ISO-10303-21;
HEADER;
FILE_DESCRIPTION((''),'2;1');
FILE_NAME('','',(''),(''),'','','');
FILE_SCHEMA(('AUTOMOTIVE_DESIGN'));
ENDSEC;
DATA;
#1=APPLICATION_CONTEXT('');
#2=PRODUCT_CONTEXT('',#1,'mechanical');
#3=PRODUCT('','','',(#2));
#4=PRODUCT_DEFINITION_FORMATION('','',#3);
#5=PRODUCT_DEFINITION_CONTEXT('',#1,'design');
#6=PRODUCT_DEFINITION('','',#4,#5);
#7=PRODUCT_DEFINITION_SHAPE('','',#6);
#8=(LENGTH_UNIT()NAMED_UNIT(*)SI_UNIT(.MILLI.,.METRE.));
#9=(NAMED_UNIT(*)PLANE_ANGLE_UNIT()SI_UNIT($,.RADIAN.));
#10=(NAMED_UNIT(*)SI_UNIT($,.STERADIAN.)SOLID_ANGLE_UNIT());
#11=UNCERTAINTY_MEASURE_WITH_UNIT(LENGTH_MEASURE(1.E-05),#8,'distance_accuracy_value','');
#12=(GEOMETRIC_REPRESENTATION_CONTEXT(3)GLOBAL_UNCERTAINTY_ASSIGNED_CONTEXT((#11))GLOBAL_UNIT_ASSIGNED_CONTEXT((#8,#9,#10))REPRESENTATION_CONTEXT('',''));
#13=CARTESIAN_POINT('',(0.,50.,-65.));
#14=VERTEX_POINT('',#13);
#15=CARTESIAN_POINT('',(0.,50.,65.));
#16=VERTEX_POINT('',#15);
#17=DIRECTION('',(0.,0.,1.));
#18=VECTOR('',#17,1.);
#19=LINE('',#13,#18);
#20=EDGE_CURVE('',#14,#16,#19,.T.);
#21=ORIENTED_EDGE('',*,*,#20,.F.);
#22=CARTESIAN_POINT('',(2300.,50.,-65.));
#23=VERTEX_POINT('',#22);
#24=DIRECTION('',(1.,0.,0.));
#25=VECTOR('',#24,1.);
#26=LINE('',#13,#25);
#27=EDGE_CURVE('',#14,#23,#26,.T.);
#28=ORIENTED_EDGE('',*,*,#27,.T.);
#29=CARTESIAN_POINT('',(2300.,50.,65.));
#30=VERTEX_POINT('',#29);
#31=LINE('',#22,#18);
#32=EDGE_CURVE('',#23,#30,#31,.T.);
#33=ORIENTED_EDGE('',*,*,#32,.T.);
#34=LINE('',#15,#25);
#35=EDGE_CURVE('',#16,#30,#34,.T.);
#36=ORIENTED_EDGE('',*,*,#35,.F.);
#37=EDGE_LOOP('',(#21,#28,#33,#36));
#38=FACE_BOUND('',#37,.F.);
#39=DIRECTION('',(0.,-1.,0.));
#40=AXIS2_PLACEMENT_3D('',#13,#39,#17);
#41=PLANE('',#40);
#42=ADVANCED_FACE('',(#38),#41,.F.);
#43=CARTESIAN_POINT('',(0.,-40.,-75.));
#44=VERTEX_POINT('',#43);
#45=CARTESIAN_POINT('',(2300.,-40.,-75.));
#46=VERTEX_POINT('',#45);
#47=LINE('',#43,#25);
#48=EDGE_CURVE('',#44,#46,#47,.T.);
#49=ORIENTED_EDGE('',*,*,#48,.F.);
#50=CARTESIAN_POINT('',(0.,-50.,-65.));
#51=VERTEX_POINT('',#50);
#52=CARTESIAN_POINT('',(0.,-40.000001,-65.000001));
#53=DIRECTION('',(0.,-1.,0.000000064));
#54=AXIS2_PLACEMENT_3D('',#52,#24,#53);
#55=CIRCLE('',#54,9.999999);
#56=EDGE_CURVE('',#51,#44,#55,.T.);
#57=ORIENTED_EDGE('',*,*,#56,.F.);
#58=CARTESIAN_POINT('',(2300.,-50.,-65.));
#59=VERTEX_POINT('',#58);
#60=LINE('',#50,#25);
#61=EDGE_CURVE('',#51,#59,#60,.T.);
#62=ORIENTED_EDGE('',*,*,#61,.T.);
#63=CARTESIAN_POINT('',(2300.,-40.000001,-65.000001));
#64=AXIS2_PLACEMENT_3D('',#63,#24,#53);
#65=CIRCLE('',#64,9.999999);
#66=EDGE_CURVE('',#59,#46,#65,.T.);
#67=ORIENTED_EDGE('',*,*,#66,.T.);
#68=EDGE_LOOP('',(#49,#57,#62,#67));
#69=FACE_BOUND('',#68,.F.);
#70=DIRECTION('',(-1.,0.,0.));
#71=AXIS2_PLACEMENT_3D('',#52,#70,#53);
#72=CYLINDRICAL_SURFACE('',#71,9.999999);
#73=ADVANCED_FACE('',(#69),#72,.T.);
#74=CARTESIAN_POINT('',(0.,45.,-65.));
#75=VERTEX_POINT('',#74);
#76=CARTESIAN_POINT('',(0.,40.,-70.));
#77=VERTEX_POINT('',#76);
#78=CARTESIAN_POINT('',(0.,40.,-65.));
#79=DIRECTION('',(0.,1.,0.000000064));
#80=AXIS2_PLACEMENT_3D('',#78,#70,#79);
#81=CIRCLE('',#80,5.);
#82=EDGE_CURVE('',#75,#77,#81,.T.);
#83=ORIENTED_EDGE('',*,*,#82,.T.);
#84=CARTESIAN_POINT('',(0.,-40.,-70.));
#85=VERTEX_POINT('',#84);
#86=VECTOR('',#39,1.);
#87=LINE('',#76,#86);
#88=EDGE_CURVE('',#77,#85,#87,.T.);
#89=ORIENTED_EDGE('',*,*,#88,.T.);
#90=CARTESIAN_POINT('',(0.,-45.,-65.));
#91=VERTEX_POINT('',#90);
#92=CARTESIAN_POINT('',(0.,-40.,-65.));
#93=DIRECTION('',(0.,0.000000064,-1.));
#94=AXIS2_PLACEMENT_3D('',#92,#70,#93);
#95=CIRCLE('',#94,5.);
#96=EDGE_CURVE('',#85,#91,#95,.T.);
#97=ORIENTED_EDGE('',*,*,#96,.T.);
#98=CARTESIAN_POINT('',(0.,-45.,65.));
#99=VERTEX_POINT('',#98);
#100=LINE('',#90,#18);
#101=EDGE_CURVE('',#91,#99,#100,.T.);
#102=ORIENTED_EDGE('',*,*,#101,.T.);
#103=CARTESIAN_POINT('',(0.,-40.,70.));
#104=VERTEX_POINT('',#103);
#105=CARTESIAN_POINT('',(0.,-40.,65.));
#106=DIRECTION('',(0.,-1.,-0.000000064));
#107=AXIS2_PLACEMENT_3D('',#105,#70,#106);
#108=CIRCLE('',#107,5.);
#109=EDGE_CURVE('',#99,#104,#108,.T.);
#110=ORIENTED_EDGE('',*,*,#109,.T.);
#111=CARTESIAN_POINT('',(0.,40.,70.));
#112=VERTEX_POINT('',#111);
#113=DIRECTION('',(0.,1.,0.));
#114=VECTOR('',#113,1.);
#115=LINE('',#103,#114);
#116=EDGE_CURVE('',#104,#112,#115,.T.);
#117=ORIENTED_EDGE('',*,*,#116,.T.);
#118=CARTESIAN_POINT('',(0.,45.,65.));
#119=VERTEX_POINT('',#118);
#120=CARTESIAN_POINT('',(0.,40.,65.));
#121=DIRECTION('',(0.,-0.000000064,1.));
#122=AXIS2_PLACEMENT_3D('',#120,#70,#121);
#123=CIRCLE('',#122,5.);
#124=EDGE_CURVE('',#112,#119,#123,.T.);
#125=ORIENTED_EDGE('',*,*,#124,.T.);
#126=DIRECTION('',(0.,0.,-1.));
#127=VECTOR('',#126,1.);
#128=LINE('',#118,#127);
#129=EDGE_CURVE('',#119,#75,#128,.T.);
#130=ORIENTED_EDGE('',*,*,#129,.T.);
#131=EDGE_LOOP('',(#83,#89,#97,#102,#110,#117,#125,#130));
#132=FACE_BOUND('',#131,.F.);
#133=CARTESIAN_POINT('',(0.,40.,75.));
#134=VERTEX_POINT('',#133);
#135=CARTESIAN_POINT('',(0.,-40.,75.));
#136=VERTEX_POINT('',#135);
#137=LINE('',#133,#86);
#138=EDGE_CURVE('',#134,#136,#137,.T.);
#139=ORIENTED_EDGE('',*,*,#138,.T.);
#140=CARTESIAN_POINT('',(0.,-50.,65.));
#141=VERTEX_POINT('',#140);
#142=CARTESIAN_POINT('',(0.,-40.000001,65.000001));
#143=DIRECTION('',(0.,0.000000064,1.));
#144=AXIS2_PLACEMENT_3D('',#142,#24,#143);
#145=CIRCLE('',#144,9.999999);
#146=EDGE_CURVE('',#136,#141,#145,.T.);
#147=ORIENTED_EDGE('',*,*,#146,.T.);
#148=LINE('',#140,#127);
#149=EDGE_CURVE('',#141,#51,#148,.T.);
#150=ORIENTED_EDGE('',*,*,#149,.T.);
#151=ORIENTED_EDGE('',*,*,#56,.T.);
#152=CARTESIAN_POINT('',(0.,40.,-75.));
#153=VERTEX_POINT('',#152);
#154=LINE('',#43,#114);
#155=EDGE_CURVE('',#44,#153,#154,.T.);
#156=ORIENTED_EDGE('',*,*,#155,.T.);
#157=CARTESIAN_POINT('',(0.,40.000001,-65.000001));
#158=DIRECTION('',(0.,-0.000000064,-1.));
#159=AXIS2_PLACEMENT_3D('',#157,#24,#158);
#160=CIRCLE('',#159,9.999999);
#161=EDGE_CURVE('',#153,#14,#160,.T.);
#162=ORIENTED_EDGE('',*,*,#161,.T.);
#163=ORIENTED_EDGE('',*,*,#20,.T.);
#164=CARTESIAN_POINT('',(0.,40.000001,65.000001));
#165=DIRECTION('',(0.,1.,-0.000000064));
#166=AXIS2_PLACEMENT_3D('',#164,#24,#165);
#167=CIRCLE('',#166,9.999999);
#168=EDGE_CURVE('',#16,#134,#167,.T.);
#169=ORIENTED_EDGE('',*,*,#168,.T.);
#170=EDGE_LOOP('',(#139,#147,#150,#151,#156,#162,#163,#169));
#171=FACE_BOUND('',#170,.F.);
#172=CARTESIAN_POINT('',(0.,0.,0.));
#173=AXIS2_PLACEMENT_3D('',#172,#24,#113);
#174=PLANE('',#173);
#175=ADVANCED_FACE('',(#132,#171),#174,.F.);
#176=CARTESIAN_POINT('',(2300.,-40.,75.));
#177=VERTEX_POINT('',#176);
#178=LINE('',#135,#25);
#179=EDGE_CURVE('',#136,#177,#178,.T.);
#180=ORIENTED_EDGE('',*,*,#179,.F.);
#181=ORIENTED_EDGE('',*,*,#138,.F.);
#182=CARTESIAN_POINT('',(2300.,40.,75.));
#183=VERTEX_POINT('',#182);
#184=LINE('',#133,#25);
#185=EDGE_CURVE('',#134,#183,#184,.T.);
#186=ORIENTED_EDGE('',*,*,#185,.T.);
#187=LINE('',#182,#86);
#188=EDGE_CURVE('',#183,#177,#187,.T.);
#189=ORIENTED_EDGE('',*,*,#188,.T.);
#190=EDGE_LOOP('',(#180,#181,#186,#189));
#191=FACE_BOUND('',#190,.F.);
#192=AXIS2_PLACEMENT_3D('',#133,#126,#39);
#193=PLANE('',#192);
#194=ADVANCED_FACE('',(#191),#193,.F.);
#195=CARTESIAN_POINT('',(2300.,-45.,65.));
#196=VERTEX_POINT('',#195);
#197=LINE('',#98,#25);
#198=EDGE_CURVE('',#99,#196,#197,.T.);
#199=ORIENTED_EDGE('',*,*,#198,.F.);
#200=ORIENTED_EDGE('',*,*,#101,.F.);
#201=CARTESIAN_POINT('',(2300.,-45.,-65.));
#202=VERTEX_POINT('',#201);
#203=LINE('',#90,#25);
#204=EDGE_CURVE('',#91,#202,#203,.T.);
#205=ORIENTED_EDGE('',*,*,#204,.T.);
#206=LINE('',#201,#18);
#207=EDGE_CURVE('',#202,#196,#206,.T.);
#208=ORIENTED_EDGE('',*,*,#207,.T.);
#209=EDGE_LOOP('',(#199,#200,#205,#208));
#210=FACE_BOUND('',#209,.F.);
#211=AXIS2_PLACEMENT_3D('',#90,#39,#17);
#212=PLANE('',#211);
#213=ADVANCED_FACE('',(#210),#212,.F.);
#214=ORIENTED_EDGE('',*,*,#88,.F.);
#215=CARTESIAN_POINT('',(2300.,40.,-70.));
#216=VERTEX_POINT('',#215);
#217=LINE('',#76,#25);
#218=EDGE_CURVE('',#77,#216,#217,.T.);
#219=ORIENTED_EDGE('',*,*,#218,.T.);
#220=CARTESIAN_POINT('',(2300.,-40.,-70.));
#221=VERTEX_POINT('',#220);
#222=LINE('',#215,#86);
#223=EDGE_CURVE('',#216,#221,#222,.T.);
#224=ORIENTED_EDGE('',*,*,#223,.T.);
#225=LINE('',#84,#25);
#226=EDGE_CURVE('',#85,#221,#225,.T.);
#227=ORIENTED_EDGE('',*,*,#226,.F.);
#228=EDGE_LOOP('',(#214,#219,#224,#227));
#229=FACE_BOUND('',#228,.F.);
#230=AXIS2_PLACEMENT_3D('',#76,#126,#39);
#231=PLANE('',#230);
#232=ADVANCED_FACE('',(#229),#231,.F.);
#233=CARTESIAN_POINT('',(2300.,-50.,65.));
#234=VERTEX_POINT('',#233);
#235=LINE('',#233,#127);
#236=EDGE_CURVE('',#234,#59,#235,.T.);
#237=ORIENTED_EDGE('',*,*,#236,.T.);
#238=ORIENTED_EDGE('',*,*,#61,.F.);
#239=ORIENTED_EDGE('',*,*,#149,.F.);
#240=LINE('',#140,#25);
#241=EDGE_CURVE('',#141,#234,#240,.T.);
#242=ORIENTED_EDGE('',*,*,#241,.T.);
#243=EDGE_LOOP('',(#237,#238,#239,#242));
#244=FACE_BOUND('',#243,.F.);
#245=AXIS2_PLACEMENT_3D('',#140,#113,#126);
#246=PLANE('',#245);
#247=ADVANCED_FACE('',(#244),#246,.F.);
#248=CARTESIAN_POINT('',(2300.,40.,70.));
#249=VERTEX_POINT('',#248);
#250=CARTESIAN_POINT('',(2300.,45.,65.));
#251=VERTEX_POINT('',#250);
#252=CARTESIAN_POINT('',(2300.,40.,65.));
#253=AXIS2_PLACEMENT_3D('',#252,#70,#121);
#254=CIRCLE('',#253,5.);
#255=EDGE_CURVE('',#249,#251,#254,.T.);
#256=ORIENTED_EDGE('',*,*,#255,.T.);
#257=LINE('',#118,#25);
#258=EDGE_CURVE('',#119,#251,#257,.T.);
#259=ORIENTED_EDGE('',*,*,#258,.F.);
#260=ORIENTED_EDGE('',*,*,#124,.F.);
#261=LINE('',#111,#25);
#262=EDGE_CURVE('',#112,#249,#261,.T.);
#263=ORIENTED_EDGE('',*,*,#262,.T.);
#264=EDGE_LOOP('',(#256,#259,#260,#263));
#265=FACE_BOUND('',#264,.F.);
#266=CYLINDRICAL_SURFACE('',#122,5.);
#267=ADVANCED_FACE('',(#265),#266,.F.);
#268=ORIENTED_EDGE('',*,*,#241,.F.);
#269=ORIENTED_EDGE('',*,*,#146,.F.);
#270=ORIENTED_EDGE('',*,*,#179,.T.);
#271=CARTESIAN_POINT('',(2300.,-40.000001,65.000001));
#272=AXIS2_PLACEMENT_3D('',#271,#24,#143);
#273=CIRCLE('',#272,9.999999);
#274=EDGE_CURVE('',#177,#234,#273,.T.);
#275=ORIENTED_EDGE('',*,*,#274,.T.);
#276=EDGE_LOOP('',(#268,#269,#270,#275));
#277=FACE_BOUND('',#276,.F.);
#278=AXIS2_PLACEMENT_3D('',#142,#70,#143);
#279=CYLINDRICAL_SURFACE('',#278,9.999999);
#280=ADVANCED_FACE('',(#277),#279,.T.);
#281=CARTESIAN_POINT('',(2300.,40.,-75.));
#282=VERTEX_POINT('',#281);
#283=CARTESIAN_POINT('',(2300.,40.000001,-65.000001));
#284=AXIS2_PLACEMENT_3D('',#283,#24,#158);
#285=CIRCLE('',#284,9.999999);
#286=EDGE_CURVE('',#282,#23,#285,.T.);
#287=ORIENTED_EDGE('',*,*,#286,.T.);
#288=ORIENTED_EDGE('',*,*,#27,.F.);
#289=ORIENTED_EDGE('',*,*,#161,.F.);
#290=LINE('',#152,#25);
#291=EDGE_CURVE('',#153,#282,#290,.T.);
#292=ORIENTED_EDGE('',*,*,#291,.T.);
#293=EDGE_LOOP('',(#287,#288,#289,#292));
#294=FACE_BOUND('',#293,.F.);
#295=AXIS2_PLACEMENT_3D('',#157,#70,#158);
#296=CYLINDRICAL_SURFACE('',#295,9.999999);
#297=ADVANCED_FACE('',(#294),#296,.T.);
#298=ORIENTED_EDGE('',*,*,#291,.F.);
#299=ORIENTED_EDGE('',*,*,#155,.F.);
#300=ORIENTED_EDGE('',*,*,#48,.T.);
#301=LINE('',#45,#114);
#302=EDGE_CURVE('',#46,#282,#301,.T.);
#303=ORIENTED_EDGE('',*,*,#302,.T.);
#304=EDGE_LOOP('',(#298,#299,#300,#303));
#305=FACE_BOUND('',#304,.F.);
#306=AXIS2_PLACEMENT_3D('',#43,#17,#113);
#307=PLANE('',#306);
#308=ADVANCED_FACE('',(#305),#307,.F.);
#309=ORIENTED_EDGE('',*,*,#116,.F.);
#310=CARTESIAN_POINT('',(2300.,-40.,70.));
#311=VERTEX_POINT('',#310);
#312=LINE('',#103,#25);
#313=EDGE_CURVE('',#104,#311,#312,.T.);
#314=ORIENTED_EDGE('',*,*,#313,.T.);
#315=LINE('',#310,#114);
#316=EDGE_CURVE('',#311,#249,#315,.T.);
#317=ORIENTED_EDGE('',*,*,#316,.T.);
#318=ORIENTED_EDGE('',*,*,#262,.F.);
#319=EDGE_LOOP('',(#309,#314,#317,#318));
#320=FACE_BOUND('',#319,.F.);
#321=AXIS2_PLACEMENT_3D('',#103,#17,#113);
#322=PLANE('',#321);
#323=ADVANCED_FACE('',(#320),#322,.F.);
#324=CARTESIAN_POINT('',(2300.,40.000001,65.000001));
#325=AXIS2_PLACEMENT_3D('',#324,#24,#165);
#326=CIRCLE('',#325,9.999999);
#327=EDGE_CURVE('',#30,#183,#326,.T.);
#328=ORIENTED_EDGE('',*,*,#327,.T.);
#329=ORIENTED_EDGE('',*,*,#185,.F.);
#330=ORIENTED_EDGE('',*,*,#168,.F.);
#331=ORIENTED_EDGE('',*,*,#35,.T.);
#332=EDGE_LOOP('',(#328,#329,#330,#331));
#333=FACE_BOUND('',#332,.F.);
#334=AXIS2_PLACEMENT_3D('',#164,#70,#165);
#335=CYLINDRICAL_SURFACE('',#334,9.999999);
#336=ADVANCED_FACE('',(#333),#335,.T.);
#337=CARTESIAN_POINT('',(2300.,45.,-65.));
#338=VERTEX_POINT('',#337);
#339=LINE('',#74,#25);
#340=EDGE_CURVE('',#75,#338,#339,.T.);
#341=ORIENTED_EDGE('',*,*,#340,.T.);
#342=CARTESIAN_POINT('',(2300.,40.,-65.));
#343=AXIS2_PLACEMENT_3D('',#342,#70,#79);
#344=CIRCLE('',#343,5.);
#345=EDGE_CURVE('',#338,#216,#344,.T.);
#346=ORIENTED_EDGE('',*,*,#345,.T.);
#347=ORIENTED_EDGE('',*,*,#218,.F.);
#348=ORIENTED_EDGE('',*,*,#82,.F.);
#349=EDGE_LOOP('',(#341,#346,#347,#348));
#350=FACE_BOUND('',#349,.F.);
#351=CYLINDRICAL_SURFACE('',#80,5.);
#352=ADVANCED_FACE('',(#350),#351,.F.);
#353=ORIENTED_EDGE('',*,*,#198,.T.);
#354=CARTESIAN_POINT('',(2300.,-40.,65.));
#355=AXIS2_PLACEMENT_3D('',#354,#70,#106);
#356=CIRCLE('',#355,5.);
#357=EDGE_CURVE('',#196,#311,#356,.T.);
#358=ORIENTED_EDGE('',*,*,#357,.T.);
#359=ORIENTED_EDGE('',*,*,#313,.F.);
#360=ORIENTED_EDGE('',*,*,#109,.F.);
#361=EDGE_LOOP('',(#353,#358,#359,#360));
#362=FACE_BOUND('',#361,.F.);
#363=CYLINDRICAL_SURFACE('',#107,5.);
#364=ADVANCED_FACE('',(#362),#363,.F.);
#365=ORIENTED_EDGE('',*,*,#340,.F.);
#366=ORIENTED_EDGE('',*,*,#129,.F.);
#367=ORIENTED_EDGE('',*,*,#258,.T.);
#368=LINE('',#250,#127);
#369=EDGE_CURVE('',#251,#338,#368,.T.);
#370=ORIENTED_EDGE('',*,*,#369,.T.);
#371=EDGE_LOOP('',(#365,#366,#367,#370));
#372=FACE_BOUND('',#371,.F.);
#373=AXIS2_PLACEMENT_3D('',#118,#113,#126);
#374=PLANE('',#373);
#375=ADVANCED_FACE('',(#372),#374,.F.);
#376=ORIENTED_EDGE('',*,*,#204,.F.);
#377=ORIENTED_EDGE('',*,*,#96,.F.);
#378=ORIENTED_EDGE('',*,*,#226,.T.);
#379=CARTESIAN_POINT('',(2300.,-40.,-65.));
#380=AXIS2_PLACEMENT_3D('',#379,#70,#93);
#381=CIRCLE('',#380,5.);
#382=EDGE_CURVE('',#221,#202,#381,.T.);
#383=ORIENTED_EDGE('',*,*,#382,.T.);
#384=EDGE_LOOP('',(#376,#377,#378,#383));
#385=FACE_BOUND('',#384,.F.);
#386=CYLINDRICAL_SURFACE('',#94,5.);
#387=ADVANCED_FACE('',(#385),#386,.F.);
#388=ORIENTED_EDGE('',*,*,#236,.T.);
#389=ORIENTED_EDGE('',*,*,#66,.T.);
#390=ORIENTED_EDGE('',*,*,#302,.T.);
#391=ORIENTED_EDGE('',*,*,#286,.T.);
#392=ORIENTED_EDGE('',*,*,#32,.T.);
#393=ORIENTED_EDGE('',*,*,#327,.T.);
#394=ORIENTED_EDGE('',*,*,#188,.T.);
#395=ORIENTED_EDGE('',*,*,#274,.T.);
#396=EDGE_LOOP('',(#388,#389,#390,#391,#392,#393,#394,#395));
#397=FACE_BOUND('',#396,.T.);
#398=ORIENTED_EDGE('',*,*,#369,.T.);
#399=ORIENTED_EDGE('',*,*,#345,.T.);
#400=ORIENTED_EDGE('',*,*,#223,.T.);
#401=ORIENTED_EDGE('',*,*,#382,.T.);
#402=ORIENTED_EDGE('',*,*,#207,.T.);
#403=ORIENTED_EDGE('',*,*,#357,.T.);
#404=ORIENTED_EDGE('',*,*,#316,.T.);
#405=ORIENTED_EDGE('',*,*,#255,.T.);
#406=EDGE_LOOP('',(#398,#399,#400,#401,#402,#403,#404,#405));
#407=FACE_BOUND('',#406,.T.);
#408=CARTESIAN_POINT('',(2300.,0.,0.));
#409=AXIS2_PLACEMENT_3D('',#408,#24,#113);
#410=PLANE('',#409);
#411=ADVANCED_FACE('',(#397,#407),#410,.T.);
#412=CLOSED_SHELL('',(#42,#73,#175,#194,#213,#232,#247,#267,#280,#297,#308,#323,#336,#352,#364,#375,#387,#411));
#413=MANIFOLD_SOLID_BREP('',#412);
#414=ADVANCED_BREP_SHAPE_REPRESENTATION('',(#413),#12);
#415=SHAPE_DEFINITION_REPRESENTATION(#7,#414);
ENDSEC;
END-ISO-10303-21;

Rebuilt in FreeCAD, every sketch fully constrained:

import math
import FreeCAD as App
import Part
import Sketcher

V = App.Vector
Q = App.Units.Quantity

doc = App.newDocument("Part")
body = doc.addObject("PartDesign::Body", "Body")

sketch1 = body.newObject("Sketcher::SketchObject", "Sketch")
sketch1.AttachmentSupport = (doc.getObject("YZ_Plane"), [""])
sketch1.MapMode = "FlatFace"
sketch1.addGeometry(Part.ArcOfCircle(Part.Circle(V(40, 65, 0), V(0, 0, 1), 10), math.radians(0), math.radians(90)), False)
sketch1.addGeometry(Part.LineSegment(V(40, 75, 0), V(-40, 75, 0)), False)
sketch1.addGeometry(Part.ArcOfCircle(Part.Circle(V(-40, 65, 0), V(0, 0, 1), 10), math.radians(90), math.radians(180)), False)
sketch1.addGeometry(Part.LineSegment(V(-50, 65, 0), V(-50, -65, 0)), False)
sketch1.addGeometry(Part.ArcOfCircle(Part.Circle(V(-40, -65, 0), V(0, 0, 1), 10), math.radians(180), math.radians(270)), False)
sketch1.addGeometry(Part.LineSegment(V(-40, -75, 0), V(40, -75, 0)), False)
sketch1.addGeometry(Part.ArcOfCircle(Part.Circle(V(40, -65, 0), V(0, 0, 1), 10), math.radians(-90), math.radians(0)), False)
sketch1.addGeometry(Part.LineSegment(V(50, -65, 0), V(50, 65, 0)), False)
sketch1.addGeometry(Part.LineSegment(V(45, 65, 0), V(45, -65, 0)), False)
sketch1.addGeometry(Part.ArcOfCircle(Part.Circle(V(40, -65, 0), V(0, 0, 1), 5), math.radians(-90), math.radians(0)), False)
sketch1.addGeometry(Part.LineSegment(V(40, -70, 0), V(-40, -70, 0)), False)
sketch1.addGeometry(Part.ArcOfCircle(Part.Circle(V(-40, -65, 0), V(0, 0, 1), 5), math.radians(180), math.radians(270)), False)
sketch1.addGeometry(Part.LineSegment(V(-45, -65, 0), V(-45, 65, 0)), False)
sketch1.addGeometry(Part.ArcOfCircle(Part.Circle(V(-40, 65, 0), V(0, 0, 1), 5), math.radians(90), math.radians(180)), False)
sketch1.addGeometry(Part.LineSegment(V(-40, 70, 0), V(40, 70, 0)), False)
sketch1.addGeometry(Part.ArcOfCircle(Part.Circle(V(40, 65, 0), V(0, 0, 1), 5), math.radians(0), math.radians(90)), False)
sketch1.addConstraint(Sketcher.Constraint("Tangent", 0, 2, 1, 1))
sketch1.addConstraint(Sketcher.Constraint("Tangent", 1, 2, 2, 1))
sketch1.addConstraint(Sketcher.Constraint("Tangent", 2, 2, 3, 1))
sketch1.addConstraint(Sketcher.Constraint("Tangent", 3, 2, 4, 1))
sketch1.addConstraint(Sketcher.Constraint("Tangent", 4, 2, 5, 1))
sketch1.addConstraint(Sketcher.Constraint("Tangent", 5, 2, 6, 1))
sketch1.addConstraint(Sketcher.Constraint("Tangent", 6, 2, 7, 1))
sketch1.addConstraint(Sketcher.Constraint("Tangent", 7, 2, 0, 1))
sketch1.addConstraint(Sketcher.Constraint("Tangent", 8, 2, 9, 2))
sketch1.addConstraint(Sketcher.Constraint("Tangent", 9, 1, 10, 1))
sketch1.addConstraint(Sketcher.Constraint("Tangent", 10, 2, 11, 2))
sketch1.addConstraint(Sketcher.Constraint("Tangent", 11, 1, 12, 1))
sketch1.addConstraint(Sketcher.Constraint("Tangent", 12, 2, 13, 2))
sketch1.addConstraint(Sketcher.Constraint("Tangent", 13, 1, 14, 1))
sketch1.addConstraint(Sketcher.Constraint("Tangent", 14, 2, 15, 2))
sketch1.addConstraint(Sketcher.Constraint("Tangent", 15, 1, 8, 1))
sketch1.addConstraint(Sketcher.Constraint("Horizontal", 1))
sketch1.addConstraint(Sketcher.Constraint("Vertical", 3))
sketch1.addConstraint(Sketcher.Constraint("Horizontal", 5))
sketch1.addConstraint(Sketcher.Constraint("Vertical", 7))
sketch1.addConstraint(Sketcher.Constraint("Vertical", 8))
sketch1.addConstraint(Sketcher.Constraint("Horizontal", 10))
sketch1.addConstraint(Sketcher.Constraint("Vertical", 12))
sketch1.addConstraint(Sketcher.Constraint("Horizontal", 14))
sketch1.addConstraint(Sketcher.Constraint("Coincident", 9, 3, 6, 3))
sketch1.addConstraint(Sketcher.Constraint("Coincident", 11, 3, 4, 3))
sketch1.addConstraint(Sketcher.Constraint("Coincident", 13, 3, 2, 3))
sketch1.addConstraint(Sketcher.Constraint("Equal", 0, 2))
sketch1.addConstraint(Sketcher.Constraint("Equal", 2, 4))
sketch1.addConstraint(Sketcher.Constraint("Equal", 4, 6))
sketch1.addConstraint(Sketcher.Constraint("Equal", 13, 15))
sketch1.addConstraint(Sketcher.Constraint("Symmetric", 0, 3, 4, 3, -1, 1))
sketch1.addConstraint(Sketcher.Constraint("Radius", 0, Q("9.999999 mm")))
sketch1.addConstraint(Sketcher.Constraint("Radius", 9, Q("5 mm")))
sketch1.addConstraint(Sketcher.Constraint("DistanceX", 1, 2, 1, 1, Q("80 mm")))
sketch1.addConstraint(Sketcher.Constraint("DistanceY", 3, 2, 3, 1, Q("130 mm")))
pad1 = body.newObject("PartDesign::Pad", "Pad")
pad1.Profile = sketch1
pad1.Length = 2300

doc.recompute()
